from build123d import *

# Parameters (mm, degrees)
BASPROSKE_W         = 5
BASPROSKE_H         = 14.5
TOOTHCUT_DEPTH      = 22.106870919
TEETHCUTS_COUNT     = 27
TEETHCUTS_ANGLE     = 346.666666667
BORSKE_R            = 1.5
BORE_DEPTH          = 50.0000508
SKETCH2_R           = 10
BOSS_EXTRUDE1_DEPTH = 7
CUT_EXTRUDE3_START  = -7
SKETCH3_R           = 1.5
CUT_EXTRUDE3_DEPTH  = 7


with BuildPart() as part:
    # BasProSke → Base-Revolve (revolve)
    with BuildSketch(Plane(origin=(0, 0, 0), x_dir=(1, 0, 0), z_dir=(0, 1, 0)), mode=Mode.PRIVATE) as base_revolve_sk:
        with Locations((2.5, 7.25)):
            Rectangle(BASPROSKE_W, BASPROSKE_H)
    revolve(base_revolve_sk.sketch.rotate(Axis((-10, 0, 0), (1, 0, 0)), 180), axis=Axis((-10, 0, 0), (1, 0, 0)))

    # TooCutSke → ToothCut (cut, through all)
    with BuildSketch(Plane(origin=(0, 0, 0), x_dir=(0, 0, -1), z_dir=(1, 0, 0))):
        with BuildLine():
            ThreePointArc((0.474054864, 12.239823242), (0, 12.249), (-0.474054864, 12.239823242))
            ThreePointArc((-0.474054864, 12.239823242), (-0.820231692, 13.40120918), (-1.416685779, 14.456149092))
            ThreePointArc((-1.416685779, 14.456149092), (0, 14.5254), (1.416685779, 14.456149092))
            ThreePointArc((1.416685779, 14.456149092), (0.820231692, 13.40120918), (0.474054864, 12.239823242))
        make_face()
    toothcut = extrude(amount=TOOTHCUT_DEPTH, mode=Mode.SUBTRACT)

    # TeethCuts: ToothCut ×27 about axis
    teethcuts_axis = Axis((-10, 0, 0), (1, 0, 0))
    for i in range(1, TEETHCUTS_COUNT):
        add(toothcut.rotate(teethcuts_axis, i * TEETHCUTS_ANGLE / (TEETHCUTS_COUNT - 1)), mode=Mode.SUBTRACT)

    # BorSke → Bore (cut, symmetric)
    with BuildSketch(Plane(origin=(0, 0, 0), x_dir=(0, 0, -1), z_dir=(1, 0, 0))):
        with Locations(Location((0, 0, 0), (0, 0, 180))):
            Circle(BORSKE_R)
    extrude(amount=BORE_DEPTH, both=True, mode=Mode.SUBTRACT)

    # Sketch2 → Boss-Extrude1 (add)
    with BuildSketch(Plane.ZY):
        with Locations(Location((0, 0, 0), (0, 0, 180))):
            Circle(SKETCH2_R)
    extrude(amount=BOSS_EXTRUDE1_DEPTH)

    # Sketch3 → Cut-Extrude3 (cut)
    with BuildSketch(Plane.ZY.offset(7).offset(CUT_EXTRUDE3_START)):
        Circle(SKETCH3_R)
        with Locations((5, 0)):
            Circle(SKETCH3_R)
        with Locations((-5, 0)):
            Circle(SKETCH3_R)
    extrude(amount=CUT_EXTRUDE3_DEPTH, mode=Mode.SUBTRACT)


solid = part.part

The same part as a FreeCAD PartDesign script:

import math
import FreeCAD as App
import Part
import Sketcher

doc = App.newDocument("Part")
body = doc.addObject("PartDesign::Body", "Body")

# Sketch on XZ plane
sketch1 = body.newObject("Sketcher::SketchObject", "Sketch")
sketch1.AttachmentSupport = (doc.getObject("XZ_Plane"), [""])
sketch1.MapMode = "FlatFace"
sketch1.addGeometry([
    Part.LineSegment(App.Vector(0, -14, 0), App.Vector(0, 0, 0)),
    Part.LineSegment(App.Vector(0, 0, 0), App.Vector(5, 0, 0)),
    Part.LineSegment(App.Vector(5, 0, 0), App.Vector(5, -14, 0)),
    Part.LineSegment(App.Vector(5, -14, 0), App.Vector(0, -14, 0)),
], False)
sketch1.addConstraint([
    Sketcher.Constraint("Coincident", 0, 2, 1, 1),
    Sketcher.Constraint("Coincident", 1, 2, 2, 1),
    Sketcher.Constraint("Coincident", 2, 2, 3, 1),
    Sketcher.Constraint("Coincident", 3, 2, 0, 1),
    Sketcher.Constraint("Vertical", 0),
    Sketcher.Constraint("Horizontal", 1),
    Sketcher.Constraint("Vertical", 2),
    Sketcher.Constraint("Horizontal", 3),
    Sketcher.Constraint("Coincident", 0, 2, -1, 1),
    Sketcher.Constraint("DistanceX", 1, 1, 1, 2, 5.0),
    Sketcher.Constraint("DistanceY", 0, 1, 0, 2, 14.5),
])
revolution = body.newObject("PartDesign::Revolution", "Revolution")
revolution.Profile = sketch1
revolution.ReferenceAxis = (sketch1, ["H_Axis"])
revolution.Angle = 360

# Sketch on YZ plane
sketch2 = body.newObject("Sketcher::SketchObject", "Sketch001")
sketch2.AttachmentSupport = (doc.getObject("YZ_Plane"), [""])
sketch2.MapMode = "FlatFace"
sketch2.addGeometry([
    Part.ArcOfCircle(Part.Circle(App.Vector(0, 0, 0), App.Vector(0, 0, 1), 12.2), math.radians(-2.22), math.radians(2.22)),
    Part.ArcOfCircle(Part.Circle(App.Vector(11.3, -5.8, 0), App.Vector(0, 0, 1), 5.4), math.radians(54), math.radians(80)),
    Part.ArcOfCircle(Part.Circle(App.Vector(0, 0, 0), App.Vector(0, 0, 1), 14.5), math.radians(-5.6), math.radians(5.6)),
    Part.ArcOfCircle(Part.Circle(App.Vector(11.3, 5.8, 0), App.Vector(0, 0, 1), 5.4), math.radians(-80), math.radians(-54)),
], False)
sketch2.addConstraint([
    Sketcher.Constraint("Coincident", 0, 1, 1, 2),
    Sketcher.Constraint("Coincident", 1, 1, 2, 1),
    Sketcher.Constraint("Coincident", 2, 2, 3, 2),
    Sketcher.Constraint("Coincident", 3, 1, 0, 2),
    Sketcher.Constraint("Coincident", 0, 3, -1, 1),
    Sketcher.Constraint("Coincident", 2, 3, -1, 1),
    Sketcher.Constraint("Equal", 1, 3),
    Sketcher.Constraint("Symmetric", 1, 3, 3, 3, -1),
    Sketcher.Constraint("Radius", 1, 5.4),
    Sketcher.Constraint("Radius", 0, 12.249001),
    Sketcher.Constraint("Radius", 2, 14.5254),
    Sketcher.Constraint("DistanceY", 1, 3, -1, 1, 5.78946),
    Sketcher.Constraint("DistanceX", -1, 1, 1, 1, 14.456149),
])
pocket1 = body.newObject("PartDesign::Pocket", "Pocket")
pocket1.Profile = sketch2
pocket1.Type = "ThroughAll"
pocket1.Reversed = True
doc.recompute()

polarpattern = body.newObject("PartDesign::PolarPattern", "PolarPattern")
polarpattern.Originals = [pocket1]
polarpattern.Axis = (doc.getObject("X_Axis"), [""])
polarpattern.Angle = 360
polarpattern.Occurrences = 27
body.Tip = polarpattern

# Sketch on YZ plane
sketch3 = body.newObject("Sketcher::SketchObject", "Sketch002")
sketch3.AttachmentSupport = (doc.getObject("YZ_Plane"), [""])
sketch3.MapMode = "FlatFace"
sketch3.addGeometry(Part.Circle(App.Vector(0, 0, 0), App.Vector(0, 0, 1), 1.5), False)
sketch3.addConstraint([
    Sketcher.Constraint("Coincident", 0, 3, -1, 1),
    Sketcher.Constraint("Diameter", 0, 3.0),
])
pocket2 = body.newObject("PartDesign::Pocket", "Pocket001")
pocket2.Profile = sketch3
pocket2.Length = 100.000102
pocket2.Midplane = True

# Sketch on YZ plane
sketch4 = body.newObject("Sketcher::SketchObject", "Sketch003")
sketch4.AttachmentSupport = (doc.getObject("YZ_Plane"), [""])
sketch4.MapMode = "FlatFace"
sketch4.addGeometry(Part.Circle(App.Vector(0, 0, 0), App.Vector(0, 0, 1), 10), False)
sketch4.addConstraint([
    Sketcher.Constraint("Coincident", 0, 3, -1, 1),
    Sketcher.Constraint("Diameter", 0, 20.0),
])
pad1 = body.newObject("PartDesign::Pad", "Pad")
pad1.Profile = sketch4
pad1.Length = 7
pad1.Reversed = True

# Sketch on YZ plane
sketch5 = body.newObject("Sketcher::SketchObject", "Sketch004")
sketch5.AttachmentSupport = (doc.getObject("YZ_Plane"), [""])
sketch5.MapMode = "FlatFace"
sketch5.addGeometry([
    Part.Circle(App.Vector(0, 0, 0), App.Vector(0, 0, 1), 1.5),
    Part.Circle(App.Vector(0, 5, 0), App.Vector(0, 0, 1), 1.5),
    Part.Circle(App.Vector(0, -5, 0), App.Vector(0, 0, 1), 1.5),
], False)
sketch5.addConstraint([
    Sketcher.Constraint("Coincident", 0, 3, -1, 1),
    Sketcher.Constraint("Equal", 0, 1),
    Sketcher.Constraint("Equal", 1, 2),
    Sketcher.Constraint("Symmetric", 1, 3, 2, 3, -1, 1),
    Sketcher.Constraint("PointOnObject", 1, 3, -2),
    Sketcher.Constraint("Diameter", 0, 3.0),
    Sketcher.Constraint("DistanceY", -1, 1, 1, 3, 5.0),
])
pocket3 = body.newObject("PartDesign::Pocket", "Pocket002")
pocket3.Profile = sketch5
pocket3.Length = 7

doc.recompute()
